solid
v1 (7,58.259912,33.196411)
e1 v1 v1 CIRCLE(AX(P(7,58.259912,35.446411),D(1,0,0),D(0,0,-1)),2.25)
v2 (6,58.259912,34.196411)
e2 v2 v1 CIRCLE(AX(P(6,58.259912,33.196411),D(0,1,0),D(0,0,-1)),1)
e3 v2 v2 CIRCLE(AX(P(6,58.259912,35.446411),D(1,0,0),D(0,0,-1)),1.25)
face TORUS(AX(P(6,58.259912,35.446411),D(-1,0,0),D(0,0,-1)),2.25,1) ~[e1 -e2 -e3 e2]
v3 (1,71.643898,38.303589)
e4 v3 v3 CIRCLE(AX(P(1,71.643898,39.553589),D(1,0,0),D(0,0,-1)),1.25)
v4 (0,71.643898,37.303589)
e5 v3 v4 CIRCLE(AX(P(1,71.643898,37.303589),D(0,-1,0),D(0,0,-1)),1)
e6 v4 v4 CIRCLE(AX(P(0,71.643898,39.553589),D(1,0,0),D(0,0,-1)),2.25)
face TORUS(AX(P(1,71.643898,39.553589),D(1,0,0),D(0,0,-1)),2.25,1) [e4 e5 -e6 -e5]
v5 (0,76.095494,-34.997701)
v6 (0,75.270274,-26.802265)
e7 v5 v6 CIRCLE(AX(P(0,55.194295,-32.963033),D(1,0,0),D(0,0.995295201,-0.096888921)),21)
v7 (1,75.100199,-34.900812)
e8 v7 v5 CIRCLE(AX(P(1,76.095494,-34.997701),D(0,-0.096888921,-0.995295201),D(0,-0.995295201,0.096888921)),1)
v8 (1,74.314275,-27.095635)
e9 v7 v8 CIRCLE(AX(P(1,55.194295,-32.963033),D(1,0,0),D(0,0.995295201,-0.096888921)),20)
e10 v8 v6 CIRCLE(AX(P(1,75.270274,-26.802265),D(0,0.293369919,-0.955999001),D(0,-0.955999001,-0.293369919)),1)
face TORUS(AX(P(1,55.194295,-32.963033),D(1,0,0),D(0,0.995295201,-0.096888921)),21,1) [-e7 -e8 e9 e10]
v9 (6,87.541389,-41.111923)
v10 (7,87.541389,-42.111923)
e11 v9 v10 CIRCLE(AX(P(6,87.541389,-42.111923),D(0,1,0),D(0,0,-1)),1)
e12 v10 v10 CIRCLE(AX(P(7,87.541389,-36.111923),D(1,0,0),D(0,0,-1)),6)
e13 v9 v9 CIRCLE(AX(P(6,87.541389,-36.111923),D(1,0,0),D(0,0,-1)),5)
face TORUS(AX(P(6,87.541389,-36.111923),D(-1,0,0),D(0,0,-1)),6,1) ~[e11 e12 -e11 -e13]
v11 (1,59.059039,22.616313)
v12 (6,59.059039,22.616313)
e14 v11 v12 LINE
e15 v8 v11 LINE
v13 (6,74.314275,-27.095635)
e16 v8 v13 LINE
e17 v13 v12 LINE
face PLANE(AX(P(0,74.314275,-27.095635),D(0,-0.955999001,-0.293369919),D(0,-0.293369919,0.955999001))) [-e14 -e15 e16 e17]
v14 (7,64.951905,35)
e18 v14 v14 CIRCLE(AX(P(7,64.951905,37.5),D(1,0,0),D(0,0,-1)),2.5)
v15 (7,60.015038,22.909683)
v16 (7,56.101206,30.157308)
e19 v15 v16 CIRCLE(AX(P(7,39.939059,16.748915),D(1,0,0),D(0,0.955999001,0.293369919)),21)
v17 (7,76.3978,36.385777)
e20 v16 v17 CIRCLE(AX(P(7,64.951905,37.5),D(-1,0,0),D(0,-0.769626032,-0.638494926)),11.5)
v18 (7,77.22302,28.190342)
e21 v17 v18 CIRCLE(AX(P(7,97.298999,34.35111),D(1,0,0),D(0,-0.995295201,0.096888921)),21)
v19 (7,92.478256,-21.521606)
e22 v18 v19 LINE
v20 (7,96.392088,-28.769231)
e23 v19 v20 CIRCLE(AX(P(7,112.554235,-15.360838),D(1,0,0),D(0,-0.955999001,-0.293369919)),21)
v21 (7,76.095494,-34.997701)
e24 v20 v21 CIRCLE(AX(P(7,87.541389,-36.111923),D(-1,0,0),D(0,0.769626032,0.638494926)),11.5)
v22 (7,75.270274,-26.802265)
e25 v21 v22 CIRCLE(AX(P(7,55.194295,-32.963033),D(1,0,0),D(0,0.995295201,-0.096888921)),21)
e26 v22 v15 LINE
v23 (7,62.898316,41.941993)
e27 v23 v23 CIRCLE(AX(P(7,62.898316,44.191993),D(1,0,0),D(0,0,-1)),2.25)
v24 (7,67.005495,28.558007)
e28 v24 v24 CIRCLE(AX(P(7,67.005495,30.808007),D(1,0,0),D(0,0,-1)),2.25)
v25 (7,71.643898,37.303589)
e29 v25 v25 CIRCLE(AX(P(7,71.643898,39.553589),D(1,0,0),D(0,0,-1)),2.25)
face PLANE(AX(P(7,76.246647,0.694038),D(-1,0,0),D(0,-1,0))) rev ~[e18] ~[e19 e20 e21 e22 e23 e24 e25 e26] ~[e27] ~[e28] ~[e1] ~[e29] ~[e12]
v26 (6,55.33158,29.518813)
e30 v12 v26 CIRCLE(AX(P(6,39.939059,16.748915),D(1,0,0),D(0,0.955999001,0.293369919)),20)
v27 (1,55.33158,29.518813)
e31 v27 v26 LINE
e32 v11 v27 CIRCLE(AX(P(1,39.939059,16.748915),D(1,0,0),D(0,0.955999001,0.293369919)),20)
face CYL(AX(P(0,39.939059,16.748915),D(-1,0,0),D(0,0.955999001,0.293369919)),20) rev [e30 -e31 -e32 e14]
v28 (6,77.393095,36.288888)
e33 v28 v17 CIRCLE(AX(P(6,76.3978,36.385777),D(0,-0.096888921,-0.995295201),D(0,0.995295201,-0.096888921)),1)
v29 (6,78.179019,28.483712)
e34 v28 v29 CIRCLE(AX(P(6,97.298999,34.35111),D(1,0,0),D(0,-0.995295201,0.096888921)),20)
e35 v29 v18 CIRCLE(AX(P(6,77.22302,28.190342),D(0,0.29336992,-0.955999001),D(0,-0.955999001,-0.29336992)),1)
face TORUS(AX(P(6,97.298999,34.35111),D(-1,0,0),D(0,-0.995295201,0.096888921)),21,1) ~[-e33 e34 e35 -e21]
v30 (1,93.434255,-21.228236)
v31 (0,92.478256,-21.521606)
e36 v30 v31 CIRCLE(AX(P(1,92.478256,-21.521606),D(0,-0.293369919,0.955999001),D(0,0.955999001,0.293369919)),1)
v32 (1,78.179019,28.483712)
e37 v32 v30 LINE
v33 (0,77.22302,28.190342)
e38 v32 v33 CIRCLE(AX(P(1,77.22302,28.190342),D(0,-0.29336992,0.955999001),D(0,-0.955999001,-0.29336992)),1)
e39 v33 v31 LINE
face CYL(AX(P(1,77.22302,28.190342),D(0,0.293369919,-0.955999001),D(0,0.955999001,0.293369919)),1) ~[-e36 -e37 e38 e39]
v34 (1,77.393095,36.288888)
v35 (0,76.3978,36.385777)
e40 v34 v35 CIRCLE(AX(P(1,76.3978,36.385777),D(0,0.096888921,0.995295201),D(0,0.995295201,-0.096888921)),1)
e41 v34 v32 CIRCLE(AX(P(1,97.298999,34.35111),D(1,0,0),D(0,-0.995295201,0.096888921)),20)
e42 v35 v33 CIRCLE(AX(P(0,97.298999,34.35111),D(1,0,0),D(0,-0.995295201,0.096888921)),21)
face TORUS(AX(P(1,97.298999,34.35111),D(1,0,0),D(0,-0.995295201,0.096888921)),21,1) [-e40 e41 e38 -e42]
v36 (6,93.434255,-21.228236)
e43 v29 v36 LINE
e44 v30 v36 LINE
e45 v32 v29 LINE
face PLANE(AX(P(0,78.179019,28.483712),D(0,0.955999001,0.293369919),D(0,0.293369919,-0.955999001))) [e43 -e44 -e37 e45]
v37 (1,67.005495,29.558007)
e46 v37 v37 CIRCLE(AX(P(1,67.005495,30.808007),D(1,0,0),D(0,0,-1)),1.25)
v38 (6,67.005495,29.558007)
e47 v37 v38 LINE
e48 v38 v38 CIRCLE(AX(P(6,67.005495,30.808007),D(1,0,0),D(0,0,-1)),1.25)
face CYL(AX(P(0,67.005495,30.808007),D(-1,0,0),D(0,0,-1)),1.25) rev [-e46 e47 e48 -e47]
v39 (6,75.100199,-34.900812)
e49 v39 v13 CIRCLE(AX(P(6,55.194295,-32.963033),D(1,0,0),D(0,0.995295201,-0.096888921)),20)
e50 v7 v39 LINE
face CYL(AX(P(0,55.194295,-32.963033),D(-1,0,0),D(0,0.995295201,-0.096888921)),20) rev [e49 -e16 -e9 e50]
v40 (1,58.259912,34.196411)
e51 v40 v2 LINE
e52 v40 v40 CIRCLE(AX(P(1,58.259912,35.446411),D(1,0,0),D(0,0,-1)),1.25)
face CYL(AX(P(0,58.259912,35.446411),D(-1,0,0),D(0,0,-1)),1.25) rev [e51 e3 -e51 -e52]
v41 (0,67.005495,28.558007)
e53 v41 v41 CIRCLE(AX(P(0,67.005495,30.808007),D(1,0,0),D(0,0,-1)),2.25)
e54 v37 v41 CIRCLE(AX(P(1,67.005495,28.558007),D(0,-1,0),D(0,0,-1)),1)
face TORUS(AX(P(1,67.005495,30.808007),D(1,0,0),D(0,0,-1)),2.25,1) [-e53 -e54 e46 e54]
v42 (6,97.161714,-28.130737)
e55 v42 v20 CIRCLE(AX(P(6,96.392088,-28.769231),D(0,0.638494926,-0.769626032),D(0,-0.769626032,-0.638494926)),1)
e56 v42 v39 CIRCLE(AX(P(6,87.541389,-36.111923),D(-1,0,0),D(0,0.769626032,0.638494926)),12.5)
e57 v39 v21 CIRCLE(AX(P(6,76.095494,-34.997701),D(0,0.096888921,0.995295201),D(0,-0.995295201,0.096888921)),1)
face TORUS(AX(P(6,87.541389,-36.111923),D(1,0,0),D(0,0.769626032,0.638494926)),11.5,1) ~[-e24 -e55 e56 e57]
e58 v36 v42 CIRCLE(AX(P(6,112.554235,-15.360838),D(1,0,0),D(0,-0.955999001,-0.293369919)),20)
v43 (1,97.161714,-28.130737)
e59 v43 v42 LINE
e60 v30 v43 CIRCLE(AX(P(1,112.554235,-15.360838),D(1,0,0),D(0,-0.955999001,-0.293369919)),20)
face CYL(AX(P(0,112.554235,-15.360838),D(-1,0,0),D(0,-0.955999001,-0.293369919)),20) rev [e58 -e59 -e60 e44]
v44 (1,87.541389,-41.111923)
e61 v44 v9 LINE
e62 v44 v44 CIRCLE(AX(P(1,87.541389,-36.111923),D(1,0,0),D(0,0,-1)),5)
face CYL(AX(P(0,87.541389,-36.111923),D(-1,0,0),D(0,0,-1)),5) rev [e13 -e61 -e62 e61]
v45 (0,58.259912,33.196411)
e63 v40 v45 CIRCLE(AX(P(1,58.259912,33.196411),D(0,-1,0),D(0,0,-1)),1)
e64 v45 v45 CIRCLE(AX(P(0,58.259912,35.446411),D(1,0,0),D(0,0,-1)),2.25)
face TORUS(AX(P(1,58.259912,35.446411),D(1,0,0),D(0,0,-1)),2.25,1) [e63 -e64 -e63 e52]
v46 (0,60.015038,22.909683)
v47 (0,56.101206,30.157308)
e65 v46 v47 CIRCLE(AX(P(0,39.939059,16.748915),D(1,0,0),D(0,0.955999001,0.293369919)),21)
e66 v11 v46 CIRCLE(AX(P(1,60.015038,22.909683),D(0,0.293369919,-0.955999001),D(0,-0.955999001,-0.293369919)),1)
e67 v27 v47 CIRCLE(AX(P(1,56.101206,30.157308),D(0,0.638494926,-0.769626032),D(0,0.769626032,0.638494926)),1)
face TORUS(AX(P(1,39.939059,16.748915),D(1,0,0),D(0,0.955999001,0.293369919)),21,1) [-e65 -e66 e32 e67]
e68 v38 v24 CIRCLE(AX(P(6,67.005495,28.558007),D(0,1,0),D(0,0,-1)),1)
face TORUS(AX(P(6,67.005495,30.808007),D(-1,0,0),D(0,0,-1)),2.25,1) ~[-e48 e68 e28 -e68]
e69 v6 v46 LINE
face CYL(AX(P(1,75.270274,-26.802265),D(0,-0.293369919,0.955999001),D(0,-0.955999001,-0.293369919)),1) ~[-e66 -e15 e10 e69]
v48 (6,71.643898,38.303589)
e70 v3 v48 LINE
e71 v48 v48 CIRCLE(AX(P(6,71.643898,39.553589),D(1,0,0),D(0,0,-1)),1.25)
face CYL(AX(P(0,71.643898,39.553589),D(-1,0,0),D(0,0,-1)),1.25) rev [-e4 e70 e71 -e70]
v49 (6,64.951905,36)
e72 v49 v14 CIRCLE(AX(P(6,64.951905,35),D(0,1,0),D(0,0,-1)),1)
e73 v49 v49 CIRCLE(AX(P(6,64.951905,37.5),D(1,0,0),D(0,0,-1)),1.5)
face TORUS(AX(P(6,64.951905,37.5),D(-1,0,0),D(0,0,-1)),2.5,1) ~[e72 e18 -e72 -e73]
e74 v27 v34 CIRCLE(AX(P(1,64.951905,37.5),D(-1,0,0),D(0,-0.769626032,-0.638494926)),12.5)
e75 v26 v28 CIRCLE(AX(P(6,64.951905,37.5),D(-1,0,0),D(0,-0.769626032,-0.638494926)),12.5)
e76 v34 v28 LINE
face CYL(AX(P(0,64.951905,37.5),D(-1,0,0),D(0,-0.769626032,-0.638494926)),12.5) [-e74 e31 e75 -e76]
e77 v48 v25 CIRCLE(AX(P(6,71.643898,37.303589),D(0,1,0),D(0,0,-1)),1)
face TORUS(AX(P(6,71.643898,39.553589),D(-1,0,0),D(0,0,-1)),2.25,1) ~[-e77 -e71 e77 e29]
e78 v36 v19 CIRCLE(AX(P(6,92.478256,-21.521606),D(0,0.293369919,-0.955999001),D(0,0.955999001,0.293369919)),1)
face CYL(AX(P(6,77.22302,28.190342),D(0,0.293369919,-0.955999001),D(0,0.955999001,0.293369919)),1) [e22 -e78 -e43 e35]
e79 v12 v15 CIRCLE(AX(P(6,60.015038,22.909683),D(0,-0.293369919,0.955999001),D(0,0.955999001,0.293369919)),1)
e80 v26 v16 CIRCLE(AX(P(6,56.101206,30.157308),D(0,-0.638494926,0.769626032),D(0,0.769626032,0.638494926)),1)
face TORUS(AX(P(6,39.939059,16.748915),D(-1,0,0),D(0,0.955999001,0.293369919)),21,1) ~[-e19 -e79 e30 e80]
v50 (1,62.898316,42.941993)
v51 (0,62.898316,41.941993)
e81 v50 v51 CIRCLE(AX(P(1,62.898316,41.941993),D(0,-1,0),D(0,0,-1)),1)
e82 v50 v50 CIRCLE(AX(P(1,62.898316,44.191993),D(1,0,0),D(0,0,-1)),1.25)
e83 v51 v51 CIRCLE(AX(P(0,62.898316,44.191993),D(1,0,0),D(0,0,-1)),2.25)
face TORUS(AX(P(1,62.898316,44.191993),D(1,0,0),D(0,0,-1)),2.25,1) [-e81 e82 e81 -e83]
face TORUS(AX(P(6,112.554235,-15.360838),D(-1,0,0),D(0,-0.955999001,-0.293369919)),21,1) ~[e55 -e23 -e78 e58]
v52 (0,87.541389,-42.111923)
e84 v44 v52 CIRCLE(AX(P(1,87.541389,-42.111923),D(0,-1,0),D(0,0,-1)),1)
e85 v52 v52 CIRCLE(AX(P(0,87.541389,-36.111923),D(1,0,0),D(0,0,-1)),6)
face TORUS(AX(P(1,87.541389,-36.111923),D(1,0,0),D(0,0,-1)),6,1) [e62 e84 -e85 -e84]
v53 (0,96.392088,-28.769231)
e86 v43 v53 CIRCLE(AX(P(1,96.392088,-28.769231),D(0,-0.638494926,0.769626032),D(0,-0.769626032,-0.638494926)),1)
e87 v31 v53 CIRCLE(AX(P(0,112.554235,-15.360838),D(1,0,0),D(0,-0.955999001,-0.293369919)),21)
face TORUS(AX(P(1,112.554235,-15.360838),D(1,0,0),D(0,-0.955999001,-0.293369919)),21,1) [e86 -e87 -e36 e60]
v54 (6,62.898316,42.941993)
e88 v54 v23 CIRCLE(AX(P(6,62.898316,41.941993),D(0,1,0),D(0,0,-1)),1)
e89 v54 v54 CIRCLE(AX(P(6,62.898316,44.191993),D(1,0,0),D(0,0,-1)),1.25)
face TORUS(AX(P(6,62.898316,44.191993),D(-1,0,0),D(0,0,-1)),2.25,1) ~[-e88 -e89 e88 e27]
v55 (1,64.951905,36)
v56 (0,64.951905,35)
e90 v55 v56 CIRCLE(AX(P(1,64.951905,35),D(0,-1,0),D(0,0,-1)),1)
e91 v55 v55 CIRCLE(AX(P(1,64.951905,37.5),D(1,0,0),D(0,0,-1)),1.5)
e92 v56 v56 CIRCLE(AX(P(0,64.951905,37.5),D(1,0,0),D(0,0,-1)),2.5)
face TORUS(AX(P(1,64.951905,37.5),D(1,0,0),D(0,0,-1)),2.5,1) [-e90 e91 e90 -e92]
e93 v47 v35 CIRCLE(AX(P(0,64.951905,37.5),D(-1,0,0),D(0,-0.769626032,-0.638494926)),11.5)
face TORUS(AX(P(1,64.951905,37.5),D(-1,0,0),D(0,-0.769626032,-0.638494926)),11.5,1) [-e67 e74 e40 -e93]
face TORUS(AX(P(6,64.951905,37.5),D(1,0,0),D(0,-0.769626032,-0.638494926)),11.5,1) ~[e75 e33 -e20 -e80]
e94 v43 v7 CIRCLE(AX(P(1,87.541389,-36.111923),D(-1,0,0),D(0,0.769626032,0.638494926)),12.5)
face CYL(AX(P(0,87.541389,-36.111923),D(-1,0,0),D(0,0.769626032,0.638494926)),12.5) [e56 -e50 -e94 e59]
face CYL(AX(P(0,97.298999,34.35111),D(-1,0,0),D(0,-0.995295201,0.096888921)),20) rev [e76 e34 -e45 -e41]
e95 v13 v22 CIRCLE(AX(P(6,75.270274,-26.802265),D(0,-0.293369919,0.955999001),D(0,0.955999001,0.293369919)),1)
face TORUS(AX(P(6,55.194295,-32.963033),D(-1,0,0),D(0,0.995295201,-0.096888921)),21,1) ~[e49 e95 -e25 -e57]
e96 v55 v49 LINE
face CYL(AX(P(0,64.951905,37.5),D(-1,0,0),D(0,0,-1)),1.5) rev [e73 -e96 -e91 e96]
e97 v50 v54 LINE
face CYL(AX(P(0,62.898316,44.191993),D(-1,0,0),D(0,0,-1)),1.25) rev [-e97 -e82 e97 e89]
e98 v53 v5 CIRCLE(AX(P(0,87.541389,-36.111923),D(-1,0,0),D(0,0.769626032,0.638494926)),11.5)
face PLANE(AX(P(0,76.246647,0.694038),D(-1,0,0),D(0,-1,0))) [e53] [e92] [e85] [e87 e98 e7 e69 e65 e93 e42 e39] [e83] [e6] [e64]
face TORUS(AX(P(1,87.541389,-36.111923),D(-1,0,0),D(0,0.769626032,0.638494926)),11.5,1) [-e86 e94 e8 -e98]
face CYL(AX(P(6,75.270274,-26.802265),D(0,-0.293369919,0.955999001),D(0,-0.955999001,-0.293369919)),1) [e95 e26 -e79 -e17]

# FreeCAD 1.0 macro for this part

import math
import FreeCAD as App
import Part
import Sketcher

V = App.Vector


def edges_at(feature, points):
    """Names of the edges that pass closest to the given points."""
    edges = feature.Shape.Edges
    near = lambda p: min(range(len(edges)), key=lambda i: edges[i].distToShape(Part.Vertex(*p))[0])
    return sorted({f"Edge{near(p) + 1}" for p in points})

doc = App.newDocument("Part")
body = doc.addObject("PartDesign::Body", "Body")

# Sketch on YZ plane
sketch1 = doc.addObject("Sketcher::SketchObject", "Sketch")
body.addObject(sketch1)
sketch1.AttachmentSupport = (doc.YZ_Plane, [""])
sketch1.MapMode = "FlatFace"
sketch1.addGeometry(Part.LineSegment(V(59.1, 22.6, 0), V(74.3, -27.1, 0)), False)
sketch1.addGeometry(Part.ArcOfCircle(Part.Circle(V(55.2, -33, 0), V(0, 0, 1), 20), math.radians(-6), math.radians(17)), False)
sketch1.addGeometry(Part.ArcOfCircle(Part.Circle(V(87.5, -36.1, 0), V(0, 0, 1), 12.5), math.radians(174), math.radians(400)), False)
sketch1.addGeometry(Part.ArcOfCircle(Part.Circle(V(112.6, -15.4, 0), V(0, 0, 1), 20), math.radians(-163), math.radians(-140)), False)
sketch1.addGeometry(Part.LineSegment(V(93.4, -21.2, 0), V(78.2, 28.5, 0)), False)
sketch1.addGeometry(Part.ArcOfCircle(Part.Circle(V(97.3, 34.4, 0), V(0, 0, 1), 20), math.radians(174), math.radians(197)), False)
sketch1.addGeometry(Part.ArcOfCircle(Part.Circle(V(65, 37.5, 0), V(0, 0, 1), 12.5), math.radians(-6), math.radians(220)), False)
sketch1.addGeometry(Part.ArcOfCircle(Part.Circle(V(39.9, 16.7, 0), V(0, 0, 1), 20), math.radians(17), math.radians(40)), False)
sketch1.addGeometry(Part.Circle(V(87.5, -36.1, 0), V(0, 0, 1), 5), False)
sketch1.addGeometry(Part.Circle(V(67, 30.8, 0), V(0, 0, 1), 1.2), False)
sketch1.addGeometry(Part.Circle(V(71.6, 39.6, 0), V(0, 0, 1), 1.2), False)
sketch1.addGeometry(Part.Circle(V(65, 37.5, 0), V(0, 0, 1), 1.5), False)
sketch1.addGeometry(Part.Circle(V(62.9, 44.2, 0), V(0, 0, 1), 1.2), False)
sketch1.addGeometry(Part.Circle(V(58.3, 35.4, 0), V(0, 0, 1), 1.2), False)
sketch1.addConstraint(Sketcher.Constraint("Tangent", 0, 2, 1, 2))
sketch1.addConstraint(Sketcher.Constraint("Tangent", 1, 1, 2, 1))
sketch1.addConstraint(Sketcher.Constraint("Tangent", 2, 2, 3, 2))
sketch1.addConstraint(Sketcher.Constraint("Tangent", 3, 1, 4, 1))
sketch1.addConstraint(Sketcher.Constraint("Tangent", 4, 2, 5, 2))
sketch1.addConstraint(Sketcher.Constraint("Tangent", 5, 1, 6, 1))
sketch1.addConstraint(Sketcher.Constraint("Tangent", 6, 2, 7, 2))
sketch1.addConstraint(Sketcher.Constraint("Tangent", 7, 1, 0, 1))
sketch1.addConstraint(Sketcher.Constraint("Coincident", 8, 3, 2, 3))
sketch1.addConstraint(Sketcher.Constraint("Coincident", 11, 3, 6, 3))
sketch1.addConstraint(Sketcher.Constraint("Equal", 1, 3))
sketch1.addConstraint(Sketcher.Constraint("Equal", 3, 5))
sketch1.addConstraint(Sketcher.Constraint("Equal", 2, 6))
sketch1.addConstraint(Sketcher.Constraint("Equal", 5, 7))
sketch1.addConstraint(Sketcher.Constraint("Equal", 9, 10))
sketch1.addConstraint(Sketcher.Constraint("Equal", 10, 12))
sketch1.addConstraint(Sketcher.Constraint("Equal", 12, 13))
sketch1.addConstraint(Sketcher.Constraint("Parallel", 0, 4))
sketch1.addConstraint(Sketcher.Constraint("Equal", 0, 4))
sketch1.addConstraint(Sketcher.Constraint("Diameter", 8, 10.0))
sketch1.addConstraint(Sketcher.Constraint("Diameter", 11, 3.0))
sketch1.addConstraint(Sketcher.Constraint("Radius", 1, 20.0))
sketch1.addConstraint(Sketcher.Constraint("Diameter", 9, 2.5))
sketch1.addConstraint(Sketcher.Constraint("Radius", 2, 12.5))
sketch1.addConstraint(Sketcher.Constraint("Distance", 0, 52.0))
sketch1.addConstraint(Sketcher.Constraint("DistanceY", -1, 1, 6, 3, 37.5))
sketch1.addConstraint(Sketcher.Constraint("DistanceX", -1, 1, 5, 3, 97.298999))
sketch1.addConstraint(Sketcher.Constraint("DistanceX", -1, 1, 10, 3, 71.643898))
sketch1.addConstraint(Sketcher.Constraint("DistanceX", -1, 1, 1, 1, 75.100199))
sketch1.addConstraint(Sketcher.Constraint("DistanceX", 1, 3, 9, 3, 11.8112))
sketch1.addConstraint(Sketcher.Constraint("DistanceY", 1, 3, 0, 2, 5.867398))
sketch1.addConstraint(Sketcher.Constraint("DistanceY", 2, 2, 0, 2, 1.035102))
sketch1.addConstraint(Sketcher.Constraint("DistanceY", 5, 1, 10, 3, 3.264701))
sketch1.addConstraint(Sketcher.Constraint("DistanceY", -1, 1, 13, 3, 35.446411))
sketch1.addConstraint(Sketcher.Constraint("DistanceY", 1, 3, 9, 3, 63.77104))
sketch1.addConstraint(Sketcher.Constraint("DistanceX", 12, 3, 6, 3, 2.053589))
sketch1.addConstraint(Sketcher.Constraint("DistanceY", 6, 2, 12, 3, 14.67318))
sketch1.addConstraint(Sketcher.Constraint("DistanceX", -1, 1, 13, 3, 58.259912))
pad1 = doc.addObject("PartDesign::Pad", "Pad")
body.addObject(pad1)
pad1.Profile = sketch1
pad1.Length = 7
doc.recompute()

fillet = doc.addObject("PartDesign::Fillet", "Fillet")
body.addObject(fillet)
fillet.Base = (pad1, edges_at(pad1, [
    (0, 66.687, -2.24),
    (0, 57.537, 26.252),
    (0, 61.285, 49.45),
    (0, 77.4, 32.347),
    (7, 57.537, 26.252),
    (7, 66.687, -2.24),
    (7, 75.094, -30.959),
    (0, 87.541, -31.112),
    (7, 87.541, -31.112),
    (7, 91.209, -48.062),
    (0, 62.898, 45.442),
    (7, 62.898, 45.442),
    (7, 94.956, -24.864),
    (0, 71.644, 40.804),
    (7, 71.644, 40.804),
    (7, 85.807, 3.628),
    (0, 67.005, 32.058),
    (7, 67.005, 32.058),
    (0, 58.26, 36.696),
    (7, 58.26, 36.696),
    (0, 64.952, 39),
    (7, 64.952, 39),
    (7, 77.4, 32.347),
    (0, 85.807, 3.628),
    (7, 61.285, 49.45),
    (0, 94.956, -24.864),
    (0, 91.209, -48.062),
    (0, 75.094, -30.959),
]))
fillet.Radius = 1

doc.recompute()
